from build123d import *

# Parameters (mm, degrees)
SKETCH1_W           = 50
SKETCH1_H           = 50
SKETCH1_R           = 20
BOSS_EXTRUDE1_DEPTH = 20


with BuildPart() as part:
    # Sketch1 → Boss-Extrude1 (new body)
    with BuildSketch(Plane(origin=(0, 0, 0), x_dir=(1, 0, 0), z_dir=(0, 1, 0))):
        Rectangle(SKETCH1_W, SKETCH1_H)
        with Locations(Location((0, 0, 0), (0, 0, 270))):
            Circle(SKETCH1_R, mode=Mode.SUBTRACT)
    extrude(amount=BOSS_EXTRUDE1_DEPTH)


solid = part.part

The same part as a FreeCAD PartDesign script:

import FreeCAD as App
import Part
import Sketcher
from FreeCAD import Vector

doc = App.newDocument("Part")
body = doc.addObject("PartDesign::Body", "Body")

sketch1 = doc.addObject("Sketcher::SketchObject", "Sketch")
body.addObject(sketch1)
sketch1.AttachmentSupport = (doc.XZ_Plane, [""])
sketch1.MapMode = "FlatFace"
sketch1.addGeometry([
    Part.LineSegment(Vector(-25, -25, 0), Vector(-25, 25, 0)),
    Part.LineSegment(Vector(-25, 25, 0), Vector(25, 25, 0)),
    Part.LineSegment(Vector(25, 25, 0), Vector(25, -25, 0)),
    Part.LineSegment(Vector(25, -25, 0), Vector(-25, -25, 0)),
    Part.Circle(Vector(0, 0, 0), Vector(0, 0, 1), 20),
], False)
sketch1.addConstraint([
    Sketcher.Constraint("Coincident", 0, 2, 1, 1),
    Sketcher.Constraint("Coincident", 1, 2, 2, 1),
    Sketcher.Constraint("Coincident", 2, 2, 3, 1),
    Sketcher.Constraint("Coincident", 3, 2, 0, 1),
    Sketcher.Constraint("Vertical", 0),
    Sketcher.Constraint("Horizontal", 1),
    Sketcher.Constraint("Vertical", 2),
    Sketcher.Constraint("Horizontal", 3),
    Sketcher.Constraint("Coincident", 4, 3, -1, 1),
    Sketcher.Constraint("Symmetric", 0, 2, 2, 2, -1, 1),
    Sketcher.Constraint("Equal", 3, 0),
    Sketcher.Constraint("Diameter", 4, 40.0),
    Sketcher.Constraint("DistanceX", 1, 1, 1, 2, 50.0),
])
pad1 = doc.addObject("PartDesign::Pad", "Pad")
body.addObject(pad1)
pad1.Profile = sketch1
pad1.Length = 20
pad1.Reversed = True

doc.recompute()
